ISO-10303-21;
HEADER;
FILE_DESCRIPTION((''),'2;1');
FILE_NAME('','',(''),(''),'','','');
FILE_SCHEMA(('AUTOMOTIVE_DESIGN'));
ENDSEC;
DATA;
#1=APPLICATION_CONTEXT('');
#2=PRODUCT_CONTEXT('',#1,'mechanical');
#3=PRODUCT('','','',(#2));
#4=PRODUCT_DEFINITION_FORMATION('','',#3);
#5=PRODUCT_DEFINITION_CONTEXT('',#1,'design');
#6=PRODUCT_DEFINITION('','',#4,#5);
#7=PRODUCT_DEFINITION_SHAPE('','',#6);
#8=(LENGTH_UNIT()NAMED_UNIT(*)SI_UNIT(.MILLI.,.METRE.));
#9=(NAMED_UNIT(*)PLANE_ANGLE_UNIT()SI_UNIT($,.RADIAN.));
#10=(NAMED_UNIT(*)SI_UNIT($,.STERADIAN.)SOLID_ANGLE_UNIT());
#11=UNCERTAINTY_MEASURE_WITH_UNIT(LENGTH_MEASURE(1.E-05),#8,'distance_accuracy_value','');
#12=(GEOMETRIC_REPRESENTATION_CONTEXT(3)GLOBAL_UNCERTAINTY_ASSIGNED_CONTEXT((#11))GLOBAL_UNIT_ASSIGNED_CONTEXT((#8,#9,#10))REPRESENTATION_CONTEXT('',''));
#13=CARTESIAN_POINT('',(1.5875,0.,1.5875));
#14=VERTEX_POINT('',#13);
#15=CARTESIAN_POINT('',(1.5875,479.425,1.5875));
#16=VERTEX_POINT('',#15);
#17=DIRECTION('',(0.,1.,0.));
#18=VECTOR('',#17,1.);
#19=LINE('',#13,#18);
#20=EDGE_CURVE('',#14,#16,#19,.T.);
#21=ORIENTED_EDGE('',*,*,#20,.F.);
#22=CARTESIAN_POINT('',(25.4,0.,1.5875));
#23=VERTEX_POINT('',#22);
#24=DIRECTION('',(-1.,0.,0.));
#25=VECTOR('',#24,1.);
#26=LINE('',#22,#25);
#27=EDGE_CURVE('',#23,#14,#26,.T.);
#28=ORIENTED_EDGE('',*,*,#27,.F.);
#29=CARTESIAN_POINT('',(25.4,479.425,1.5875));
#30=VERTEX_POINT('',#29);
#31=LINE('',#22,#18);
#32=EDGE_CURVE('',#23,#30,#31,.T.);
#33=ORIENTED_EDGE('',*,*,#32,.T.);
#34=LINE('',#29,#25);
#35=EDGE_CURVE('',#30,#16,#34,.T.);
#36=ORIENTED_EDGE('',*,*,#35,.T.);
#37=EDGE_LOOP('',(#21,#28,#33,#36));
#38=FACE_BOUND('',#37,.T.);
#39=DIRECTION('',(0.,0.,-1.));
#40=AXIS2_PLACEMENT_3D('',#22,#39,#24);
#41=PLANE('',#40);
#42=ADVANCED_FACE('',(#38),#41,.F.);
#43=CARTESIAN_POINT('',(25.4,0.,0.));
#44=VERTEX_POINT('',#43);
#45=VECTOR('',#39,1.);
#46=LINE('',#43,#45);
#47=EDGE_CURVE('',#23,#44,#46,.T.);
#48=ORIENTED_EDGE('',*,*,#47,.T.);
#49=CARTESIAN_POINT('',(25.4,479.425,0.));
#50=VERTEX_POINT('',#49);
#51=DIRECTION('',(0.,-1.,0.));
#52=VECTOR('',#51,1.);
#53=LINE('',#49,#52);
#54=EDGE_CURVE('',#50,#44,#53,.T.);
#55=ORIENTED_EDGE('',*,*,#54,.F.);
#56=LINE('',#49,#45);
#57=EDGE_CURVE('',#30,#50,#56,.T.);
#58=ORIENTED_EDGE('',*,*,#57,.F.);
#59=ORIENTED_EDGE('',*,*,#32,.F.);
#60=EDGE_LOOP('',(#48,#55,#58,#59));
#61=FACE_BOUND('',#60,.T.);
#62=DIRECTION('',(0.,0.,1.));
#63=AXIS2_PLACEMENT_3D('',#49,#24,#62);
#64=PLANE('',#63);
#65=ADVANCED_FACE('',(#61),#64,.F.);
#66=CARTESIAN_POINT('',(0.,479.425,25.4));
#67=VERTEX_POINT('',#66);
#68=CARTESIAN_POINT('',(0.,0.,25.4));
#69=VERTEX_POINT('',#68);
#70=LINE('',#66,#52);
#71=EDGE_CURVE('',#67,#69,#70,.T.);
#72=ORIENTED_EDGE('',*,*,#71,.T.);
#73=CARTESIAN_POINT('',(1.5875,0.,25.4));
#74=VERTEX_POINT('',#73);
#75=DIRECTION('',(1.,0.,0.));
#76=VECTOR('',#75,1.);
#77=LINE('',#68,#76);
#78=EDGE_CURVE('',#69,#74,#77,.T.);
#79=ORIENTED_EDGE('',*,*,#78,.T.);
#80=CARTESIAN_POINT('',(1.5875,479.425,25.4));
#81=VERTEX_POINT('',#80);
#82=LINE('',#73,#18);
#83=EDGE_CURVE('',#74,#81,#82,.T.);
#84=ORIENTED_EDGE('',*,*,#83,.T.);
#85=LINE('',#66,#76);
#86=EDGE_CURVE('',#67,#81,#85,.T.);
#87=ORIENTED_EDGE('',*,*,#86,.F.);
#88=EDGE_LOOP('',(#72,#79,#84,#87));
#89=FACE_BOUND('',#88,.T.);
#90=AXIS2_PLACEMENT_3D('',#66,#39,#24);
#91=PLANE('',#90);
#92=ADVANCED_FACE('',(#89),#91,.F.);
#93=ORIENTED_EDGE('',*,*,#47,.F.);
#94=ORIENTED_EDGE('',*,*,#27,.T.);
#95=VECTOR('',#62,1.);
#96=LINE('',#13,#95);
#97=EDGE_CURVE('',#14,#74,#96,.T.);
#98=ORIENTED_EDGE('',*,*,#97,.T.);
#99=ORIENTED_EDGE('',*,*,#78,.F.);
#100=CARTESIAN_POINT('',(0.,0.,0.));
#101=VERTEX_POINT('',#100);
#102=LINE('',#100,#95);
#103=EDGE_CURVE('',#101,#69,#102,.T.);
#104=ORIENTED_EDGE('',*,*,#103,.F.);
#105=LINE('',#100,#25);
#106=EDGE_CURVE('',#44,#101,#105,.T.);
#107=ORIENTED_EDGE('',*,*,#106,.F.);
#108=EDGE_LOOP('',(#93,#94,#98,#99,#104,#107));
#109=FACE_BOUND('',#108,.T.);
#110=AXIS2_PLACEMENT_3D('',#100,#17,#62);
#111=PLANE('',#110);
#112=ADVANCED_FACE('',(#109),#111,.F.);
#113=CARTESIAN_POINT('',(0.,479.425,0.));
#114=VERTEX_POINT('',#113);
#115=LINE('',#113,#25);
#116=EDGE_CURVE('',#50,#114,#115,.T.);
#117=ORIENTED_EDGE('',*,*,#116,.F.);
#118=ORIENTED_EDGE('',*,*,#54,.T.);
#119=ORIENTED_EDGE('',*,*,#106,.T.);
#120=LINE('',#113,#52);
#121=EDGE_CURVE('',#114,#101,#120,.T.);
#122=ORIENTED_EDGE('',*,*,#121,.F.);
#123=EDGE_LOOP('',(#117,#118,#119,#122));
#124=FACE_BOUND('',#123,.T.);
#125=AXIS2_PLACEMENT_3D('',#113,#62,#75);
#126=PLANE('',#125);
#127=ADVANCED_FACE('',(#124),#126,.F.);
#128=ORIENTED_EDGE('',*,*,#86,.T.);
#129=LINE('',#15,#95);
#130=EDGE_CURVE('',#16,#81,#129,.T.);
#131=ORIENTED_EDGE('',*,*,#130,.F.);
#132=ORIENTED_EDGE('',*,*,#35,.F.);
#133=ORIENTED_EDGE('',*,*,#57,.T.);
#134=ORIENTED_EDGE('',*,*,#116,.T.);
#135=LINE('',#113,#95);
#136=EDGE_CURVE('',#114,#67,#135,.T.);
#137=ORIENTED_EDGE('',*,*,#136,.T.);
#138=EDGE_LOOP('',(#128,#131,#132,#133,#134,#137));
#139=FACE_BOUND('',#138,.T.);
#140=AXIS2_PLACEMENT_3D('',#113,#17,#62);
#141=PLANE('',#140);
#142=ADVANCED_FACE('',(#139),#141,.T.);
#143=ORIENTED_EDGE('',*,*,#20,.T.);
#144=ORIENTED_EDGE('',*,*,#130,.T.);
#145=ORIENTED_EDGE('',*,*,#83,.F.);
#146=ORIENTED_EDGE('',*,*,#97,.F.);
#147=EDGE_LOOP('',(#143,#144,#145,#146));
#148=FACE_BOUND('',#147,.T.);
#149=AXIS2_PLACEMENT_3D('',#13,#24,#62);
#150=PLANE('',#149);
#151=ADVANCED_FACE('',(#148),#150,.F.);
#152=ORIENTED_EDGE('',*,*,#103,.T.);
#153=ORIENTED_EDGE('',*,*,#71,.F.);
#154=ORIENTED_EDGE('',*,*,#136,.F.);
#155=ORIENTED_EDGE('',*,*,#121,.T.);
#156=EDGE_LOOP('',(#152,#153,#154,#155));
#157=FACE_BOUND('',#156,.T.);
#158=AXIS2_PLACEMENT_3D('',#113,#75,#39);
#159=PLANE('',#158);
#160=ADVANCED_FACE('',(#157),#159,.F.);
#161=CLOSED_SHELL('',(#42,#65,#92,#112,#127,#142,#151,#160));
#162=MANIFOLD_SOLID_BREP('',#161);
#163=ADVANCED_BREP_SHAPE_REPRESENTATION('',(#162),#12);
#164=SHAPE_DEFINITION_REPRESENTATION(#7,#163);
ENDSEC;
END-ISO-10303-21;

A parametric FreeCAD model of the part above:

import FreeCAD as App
import Part
import Sketcher
from FreeCAD import Vector
Q = App.Units.Quantity


def add_polygon(sketch, points):
    """Adds a closed chain of lines whose ends are joined by coincident constraints."""
    first, n = sketch.GeometryCount, len(points)
    for a, b in zip(points, points[1:] + points[:1]):
        sketch.addGeometry(Part.LineSegment(App.Vector(*a, 0), App.Vector(*b, 0)), False)
    for i in range(n):
        sketch.addConstraint(Sketcher.Constraint("Coincident", first + i, 2, first + (i + 1) % n, 1))

doc = App.newDocument("Part")
body = doc.addObject("PartDesign::Body", "Body")

sketch1 = body.newObject("Sketcher::SketchObject", "Sketch")
sketch1.AttachmentSupport = (doc.getObject("XZ_Plane"), [""])
sketch1.MapMode = "FlatFace"
add_polygon(sketch1, [(0, 0), (0, 25.4), (25.4, 25.4), (25.4, 0)])
sketch1.addConstraint([
    Sketcher.Constraint("Vertical", 0),
    Sketcher.Constraint("Horizontal", 1),
    Sketcher.Constraint("Vertical", 2),
    Sketcher.Constraint("Horizontal", 3),
    Sketcher.Constraint("Coincident", 3, 2, -1, 1),
    Sketcher.Constraint("Equal", 3, 0),
    Sketcher.Constraint("DistanceX", 1, 1, 1, 2, Q("1 in")),
])
pad1 = body.newObject("PartDesign::Pad", "Pad")
pad1.Profile = sketch1
pad1.Length = Q("18.875 in")
pad1.Reversed = True

sketch2 = body.newObject("Sketcher::SketchObject", "Sketch001")
sketch2.AttachmentSupport = (doc.getObject("XZ_Plane"), [""])
sketch2.MapMode = "FlatFace"
sketch2.AttachmentOffset = App.Placement(Vector(0, 0, -18.875 * 25.4), App.Rotation())
add_polygon(sketch2, [(1.5875, 1.5875), (1.5875, 25.4), (25.4, 25.4), (25.4, 1.5875)])
sketch2.addConstraint([
    Sketcher.Constraint("Vertical", 0),
    Sketcher.Constraint("Horizontal", 1),
    Sketcher.Constraint("Vertical", 2),
    Sketcher.Constraint("Horizontal", 3),
    Sketcher.Constraint("Equal", 3, 0),
    Sketcher.Constraint("DistanceY", -1, 1, 0, 2, Q("1 in")),
    Sketcher.Constraint("DistanceX", -1, 1, 1, 2, Q("1 in")),
    Sketcher.Constraint("DistanceX", 1, 1, 1, 2, Q("0.9375 in")),
])
pocket1 = body.newObject("PartDesign::Pocket", "Pocket")
pocket1.Profile = sketch2
pocket1.Type = "ThroughAll"
pocket1.Reversed = True

doc.recompute()
